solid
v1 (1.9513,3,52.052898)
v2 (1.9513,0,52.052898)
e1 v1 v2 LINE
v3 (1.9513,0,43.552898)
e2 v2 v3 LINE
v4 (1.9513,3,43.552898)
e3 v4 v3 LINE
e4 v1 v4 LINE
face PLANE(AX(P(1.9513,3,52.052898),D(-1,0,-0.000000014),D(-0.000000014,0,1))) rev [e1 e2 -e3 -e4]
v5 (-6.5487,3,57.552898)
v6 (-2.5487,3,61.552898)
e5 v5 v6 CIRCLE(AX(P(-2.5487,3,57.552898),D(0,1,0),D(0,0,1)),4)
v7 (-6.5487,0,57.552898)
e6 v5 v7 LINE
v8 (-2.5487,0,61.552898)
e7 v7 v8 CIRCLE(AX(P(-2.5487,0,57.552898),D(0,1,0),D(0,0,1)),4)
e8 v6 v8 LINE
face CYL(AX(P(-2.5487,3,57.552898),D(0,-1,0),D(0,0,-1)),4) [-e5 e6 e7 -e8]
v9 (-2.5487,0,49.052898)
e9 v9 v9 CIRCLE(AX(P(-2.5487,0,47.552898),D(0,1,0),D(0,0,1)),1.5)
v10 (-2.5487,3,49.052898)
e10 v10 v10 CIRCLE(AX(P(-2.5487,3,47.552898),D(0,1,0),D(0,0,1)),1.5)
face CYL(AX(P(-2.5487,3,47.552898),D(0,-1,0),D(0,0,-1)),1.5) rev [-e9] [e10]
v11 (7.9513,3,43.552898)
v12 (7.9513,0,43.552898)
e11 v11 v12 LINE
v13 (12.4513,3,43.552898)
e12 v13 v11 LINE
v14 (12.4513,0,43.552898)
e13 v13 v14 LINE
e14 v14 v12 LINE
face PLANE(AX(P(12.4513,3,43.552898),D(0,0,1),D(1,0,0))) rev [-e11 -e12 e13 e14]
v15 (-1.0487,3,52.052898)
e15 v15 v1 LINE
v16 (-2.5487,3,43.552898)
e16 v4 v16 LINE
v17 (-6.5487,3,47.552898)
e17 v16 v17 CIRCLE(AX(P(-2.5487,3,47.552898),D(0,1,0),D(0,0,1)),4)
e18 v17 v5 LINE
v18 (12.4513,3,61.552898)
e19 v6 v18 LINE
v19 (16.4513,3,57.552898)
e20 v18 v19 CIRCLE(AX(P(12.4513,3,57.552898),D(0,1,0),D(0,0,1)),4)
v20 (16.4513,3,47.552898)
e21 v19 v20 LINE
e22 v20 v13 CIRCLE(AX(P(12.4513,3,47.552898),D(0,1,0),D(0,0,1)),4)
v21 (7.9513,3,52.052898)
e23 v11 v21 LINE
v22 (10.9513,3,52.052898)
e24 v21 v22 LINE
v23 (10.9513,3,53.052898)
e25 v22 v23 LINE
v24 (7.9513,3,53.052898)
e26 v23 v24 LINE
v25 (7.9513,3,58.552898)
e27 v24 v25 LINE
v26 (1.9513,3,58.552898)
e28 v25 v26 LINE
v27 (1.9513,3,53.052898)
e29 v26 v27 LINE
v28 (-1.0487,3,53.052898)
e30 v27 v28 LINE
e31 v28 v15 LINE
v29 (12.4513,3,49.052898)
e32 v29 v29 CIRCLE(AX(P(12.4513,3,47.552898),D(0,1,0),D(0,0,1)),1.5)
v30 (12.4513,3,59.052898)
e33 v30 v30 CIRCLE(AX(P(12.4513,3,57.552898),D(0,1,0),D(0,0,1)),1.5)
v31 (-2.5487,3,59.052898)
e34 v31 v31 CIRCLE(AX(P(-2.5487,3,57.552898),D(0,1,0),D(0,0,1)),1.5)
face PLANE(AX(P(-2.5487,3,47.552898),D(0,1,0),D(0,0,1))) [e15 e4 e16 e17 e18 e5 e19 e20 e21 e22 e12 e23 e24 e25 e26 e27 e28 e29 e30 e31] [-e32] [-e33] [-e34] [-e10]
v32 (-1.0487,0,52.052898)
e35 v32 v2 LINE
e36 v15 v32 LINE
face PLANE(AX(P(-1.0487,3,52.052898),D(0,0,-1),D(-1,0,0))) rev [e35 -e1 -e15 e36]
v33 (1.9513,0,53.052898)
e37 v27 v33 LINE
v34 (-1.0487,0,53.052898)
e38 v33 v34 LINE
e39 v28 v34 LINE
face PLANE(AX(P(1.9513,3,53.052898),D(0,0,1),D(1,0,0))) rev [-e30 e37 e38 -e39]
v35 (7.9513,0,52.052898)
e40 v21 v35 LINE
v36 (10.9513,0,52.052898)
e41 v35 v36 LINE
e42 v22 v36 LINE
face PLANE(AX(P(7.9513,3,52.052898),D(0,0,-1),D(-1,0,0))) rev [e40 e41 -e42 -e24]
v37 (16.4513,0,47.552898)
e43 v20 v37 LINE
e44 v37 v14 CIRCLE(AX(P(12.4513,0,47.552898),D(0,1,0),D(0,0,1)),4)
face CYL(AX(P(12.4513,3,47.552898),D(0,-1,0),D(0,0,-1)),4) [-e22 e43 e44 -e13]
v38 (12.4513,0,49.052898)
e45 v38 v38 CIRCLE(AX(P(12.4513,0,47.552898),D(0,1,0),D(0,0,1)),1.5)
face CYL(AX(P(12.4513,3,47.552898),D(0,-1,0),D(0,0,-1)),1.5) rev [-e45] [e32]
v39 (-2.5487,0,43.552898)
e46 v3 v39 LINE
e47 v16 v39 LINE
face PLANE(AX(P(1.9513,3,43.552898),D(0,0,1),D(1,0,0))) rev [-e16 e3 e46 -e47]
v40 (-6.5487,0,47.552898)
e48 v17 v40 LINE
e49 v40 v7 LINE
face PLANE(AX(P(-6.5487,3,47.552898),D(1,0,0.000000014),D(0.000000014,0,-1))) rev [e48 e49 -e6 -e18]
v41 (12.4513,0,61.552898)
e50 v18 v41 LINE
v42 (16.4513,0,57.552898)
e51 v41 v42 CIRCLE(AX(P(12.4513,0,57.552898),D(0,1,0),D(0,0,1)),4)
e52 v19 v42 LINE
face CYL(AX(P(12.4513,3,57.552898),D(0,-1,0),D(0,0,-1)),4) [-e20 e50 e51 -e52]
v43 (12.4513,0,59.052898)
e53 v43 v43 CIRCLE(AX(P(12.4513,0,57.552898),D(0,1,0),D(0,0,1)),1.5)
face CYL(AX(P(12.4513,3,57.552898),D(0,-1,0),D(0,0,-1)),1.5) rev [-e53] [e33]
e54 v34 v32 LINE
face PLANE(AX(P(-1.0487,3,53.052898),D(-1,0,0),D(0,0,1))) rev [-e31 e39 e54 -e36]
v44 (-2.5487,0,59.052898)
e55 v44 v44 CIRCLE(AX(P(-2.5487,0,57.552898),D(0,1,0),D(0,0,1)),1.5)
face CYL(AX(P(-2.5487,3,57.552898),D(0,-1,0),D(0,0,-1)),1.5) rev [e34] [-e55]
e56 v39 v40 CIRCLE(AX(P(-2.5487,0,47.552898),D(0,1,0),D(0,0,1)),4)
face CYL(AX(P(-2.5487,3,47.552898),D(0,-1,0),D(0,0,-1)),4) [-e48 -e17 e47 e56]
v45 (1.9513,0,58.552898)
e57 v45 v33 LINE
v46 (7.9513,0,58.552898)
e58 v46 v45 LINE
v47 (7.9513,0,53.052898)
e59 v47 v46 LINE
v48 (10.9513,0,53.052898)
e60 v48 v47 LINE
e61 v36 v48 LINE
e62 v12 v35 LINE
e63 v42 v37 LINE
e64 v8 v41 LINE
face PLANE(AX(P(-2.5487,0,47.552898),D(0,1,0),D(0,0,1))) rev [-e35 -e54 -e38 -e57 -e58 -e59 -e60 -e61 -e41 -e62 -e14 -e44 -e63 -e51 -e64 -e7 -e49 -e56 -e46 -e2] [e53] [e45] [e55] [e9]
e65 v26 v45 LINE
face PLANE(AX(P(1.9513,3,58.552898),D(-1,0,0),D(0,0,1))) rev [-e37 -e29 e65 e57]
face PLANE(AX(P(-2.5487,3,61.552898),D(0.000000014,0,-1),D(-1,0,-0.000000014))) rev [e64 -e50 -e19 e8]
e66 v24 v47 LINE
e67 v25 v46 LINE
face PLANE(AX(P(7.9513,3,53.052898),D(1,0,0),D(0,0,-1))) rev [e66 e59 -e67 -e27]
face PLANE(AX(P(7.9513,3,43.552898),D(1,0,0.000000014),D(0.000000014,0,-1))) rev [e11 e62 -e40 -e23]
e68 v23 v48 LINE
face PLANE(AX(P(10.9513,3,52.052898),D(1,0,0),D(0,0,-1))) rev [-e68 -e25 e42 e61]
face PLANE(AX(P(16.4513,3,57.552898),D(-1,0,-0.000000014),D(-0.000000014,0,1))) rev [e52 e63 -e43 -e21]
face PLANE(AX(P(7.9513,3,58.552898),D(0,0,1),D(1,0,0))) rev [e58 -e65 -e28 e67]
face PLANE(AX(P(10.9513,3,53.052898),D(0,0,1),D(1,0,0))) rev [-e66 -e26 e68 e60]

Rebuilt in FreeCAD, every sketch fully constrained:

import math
import FreeCAD as App
import Part
import Sketcher

V = App.Vector
Q = App.Units.Quantity

doc = App.newDocument("Part")
params = doc.addObject("Spreadsheet::Sheet", "Params")
for row, (alias, value) in enumerate([
    ("sketch1_diameter", "3 mm"),
    ("sketch1_radius", "4 mm"),
    ("sketch1_width", "3 mm"),
    ("sketch1_width2", "6 mm"),
    ("sketch1_width3", "15 mm"),
    ("pad1_length", "3 mm"),
], start=1):
    params.set(f"A{row}", alias)
    params.set(f"B{row}", "=" + value)
    params.setAlias(f"B{row}", alias)

body = doc.addObject("PartDesign::Body", "Body")

# Sketch on XZ plane
sketch1 = doc.addObject("Sketcher::SketchObject", "Sketch")
body.addObject(sketch1)
sketch1.AttachmentSupport = (doc.XZ_Plane, [""])
sketch1.MapMode = "FlatFace"
sketch1.addGeometry(Part.LineSegment(V(8, 43.6, 0), V(8, 52.1, 0)), False)
sketch1.addGeometry(Part.LineSegment(V(8, 52.1, 0), V(11, 52.1, 0)), False)
sketch1.addGeometry(Part.LineSegment(V(11, 52.1, 0), V(11, 53.1, 0)), False)
sketch1.addGeometry(Part.LineSegment(V(11, 53.1, 0), V(8, 53.1, 0)), False)
sketch1.addGeometry(Part.LineSegment(V(8, 53.1, 0), V(8, 58.6, 0)), False)
sketch1.addGeometry(Part.LineSegment(V(8, 58.6, 0), V(2, 58.6, 0)), False)
sketch1.addGeometry(Part.LineSegment(V(2, 58.6, 0), V(2, 53.1, 0)), False)
sketch1.addGeometry(Part.LineSegment(V(2, 53.1, 0), V(-1, 53.1, 0)), False)
sketch1.addGeometry(Part.LineSegment(V(-1, 53.1, 0), V(-1, 52.1, 0)), False)
sketch1.addGeometry(Part.LineSegment(V(-1, 52.1, 0), V(2, 52.1, 0)), False)
sketch1.addGeometry(Part.LineSegment(V(2, 52.1, 0), V(2, 43.6, 0)), False)
sketch1.addGeometry(Part.LineSegment(V(2, 43.6, 0), V(-2.5, 43.6, 0)), False)
sketch1.addGeometry(Part.ArcOfCircle(Part.Circle(V(-2.5, 47.6, 0), V(0, 0, 1), 4), math.radians(-180), math.radians(-90)), False)
sketch1.addGeometry(Part.LineSegment(V(-6.5, 47.6, 0), V(-6.5, 57.6, 0)), False)
sketch1.addGeometry(Part.ArcOfCircle(Part.Circle(V(-2.5, 57.6, 0), V(0, 0, 1), 4), math.radians(90), math.radians(180)), False)
sketch1.addGeometry(Part.LineSegment(V(-2.5, 61.6, 0), V(12.5, 61.6, 0)), False)
sketch1.addGeometry(Part.ArcOfCircle(Part.Circle(V(12.5, 57.6, 0), V(0, 0, 1), 4), math.radians(0), math.radians(90)), False)
sketch1.addGeometry(Part.LineSegment(V(16.5, 57.6, 0), V(16.5, 47.6, 0)), False)
sketch1.addGeometry(Part.ArcOfCircle(Part.Circle(V(12.5, 47.6, 0), V(0, 0, 1), 4), math.radians(-90), math.radians(0)), False)
sketch1.addGeometry(Part.LineSegment(V(12.5, 43.6, 0), V(8, 43.6, 0)), False)
sketch1.addGeometry(Part.Circle(V(-2.5, 57.6, 0), V(0, 0, 1), 1.5), False)
sketch1.addGeometry(Part.Circle(V(12.5, 57.6, 0), V(0, 0, 1), 1.5), False)
sketch1.addGeometry(Part.Circle(V(-2.5, 47.6, 0), V(0, 0, 1), 1.5), False)
sketch1.addGeometry(Part.Circle(V(12.5, 47.6, 0), V(0, 0, 1), 1.5), False)
sketch1.addConstraint(Sketcher.Constraint("Coincident", 0, 2, 1, 1))
sketch1.addConstraint(Sketcher.Constraint("Coincident", 1, 2, 2, 1))
sketch1.addConstraint(Sketcher.Constraint("Coincident", 2, 2, 3, 1))
sketch1.addConstraint(Sketcher.Constraint("Coincident", 3, 2, 4, 1))
sketch1.addConstraint(Sketcher.Constraint("Coincident", 4, 2, 5, 1))
sketch1.addConstraint(Sketcher.Constraint("Coincident", 5, 2, 6, 1))
sketch1.addConstraint(Sketcher.Constraint("Coincident", 6, 2, 7, 1))
sketch1.addConstraint(Sketcher.Constraint("Coincident", 7, 2, 8, 1))
sketch1.addConstraint(Sketcher.Constraint("Coincident", 8, 2, 9, 1))
sketch1.addConstraint(Sketcher.Constraint("Coincident", 9, 2, 10, 1))
sketch1.addConstraint(Sketcher.Constraint("Coincident", 10, 2, 11, 1))
sketch1.addConstraint(Sketcher.Constraint("Tangent", 11, 2, 12, 2))
sketch1.addConstraint(Sketcher.Constraint("Tangent", 12, 1, 13, 1))
sketch1.addConstraint(Sketcher.Constraint("Tangent", 13, 2, 14, 2))
sketch1.addConstraint(Sketcher.Constraint("Tangent", 14, 1, 15, 1))
sketch1.addConstraint(Sketcher.Constraint("Tangent", 15, 2, 16, 2))
sketch1.addConstraint(Sketcher.Constraint("Tangent", 16, 1, 17, 1))
sketch1.addConstraint(Sketcher.Constraint("Tangent", 17, 2, 18, 2))
sketch1.addConstraint(Sketcher.Constraint("Tangent", 18, 1, 19, 1))
sketch1.addConstraint(Sketcher.Constraint("Coincident", 19, 2, 0, 1))
sketch1.addConstraint(Sketcher.Constraint("Vertical", 0))
sketch1.addConstraint(Sketcher.Constraint("Horizontal", 1))
sketch1.addConstraint(Sketcher.Constraint("Vertical", 2))
sketch1.addConstraint(Sketcher.Constraint("Horizontal", 3))
sketch1.addConstraint(Sketcher.Constraint("Vertical", 4))
sketch1.addConstraint(Sketcher.Constraint("Horizontal", 5))
sketch1.addConstraint(Sketcher.Constraint("Vertical", 6))
sketch1.addConstraint(Sketcher.Constraint("Horizontal", 7))
sketch1.addConstraint(Sketcher.Constraint("Vertical", 8))
sketch1.addConstraint(Sketcher.Constraint("Horizontal", 9))
sketch1.addConstraint(Sketcher.Constraint("Vertical", 10))
sketch1.addConstraint(Sketcher.Constraint("Horizontal", 11))
sketch1.addConstraint(Sketcher.Constraint("Vertical", 13))
sketch1.addConstraint(Sketcher.Constraint("Horizontal", 15))
sketch1.addConstraint(Sketcher.Constraint("Vertical", 17))
sketch1.addConstraint(Sketcher.Constraint("Horizontal", 19))
sketch1.addConstraint(Sketcher.Constraint("Coincident", 20, 3, 14, 3))
sketch1.addConstraint(Sketcher.Constraint("Coincident", 21, 3, 16, 3))
sketch1.addConstraint(Sketcher.Constraint("Coincident", 22, 3, 12, 3))
sketch1.addConstraint(Sketcher.Constraint("Coincident", 23, 3, 18, 3))
sketch1.addConstraint(Sketcher.Constraint("Equal", 12, 14))
sketch1.addConstraint(Sketcher.Constraint("Equal", 14, 16))
sketch1.addConstraint(Sketcher.Constraint("Equal", 16, 18))
sketch1.addConstraint(Sketcher.Constraint("Equal", 20, 21))
sketch1.addConstraint(Sketcher.Constraint("Equal", 21, 22))
sketch1.addConstraint(Sketcher.Constraint("Equal", 22, 23))
sketch1.addConstraint(Sketcher.Constraint("Horizontal", 12, 3, 18, 3))
sketch1.addConstraint(Sketcher.Constraint("Horizontal", 3, 2, 6, 2))
sketch1.addConstraint(Sketcher.Constraint("Horizontal", 1, 2, 8, 2))
sketch1.addConstraint(Sketcher.Constraint("Vertical", 0, 2, 3, 2))
sketch1.addConstraint(Sketcher.Constraint("Vertical", 6, 2, 9, 2))
sketch1.addConstraint(Sketcher.Constraint("Equal", 3, 7))
sketch1.addConstraint(Sketcher.Constraint("Equal", 11, 19))
sketch1.addConstraint(Sketcher.Constraint("Diameter", 20, Q("3 mm")))
sketch1.addConstraint(Sketcher.Constraint("Radius", 12, Q("4 mm")))
sketch1.addConstraint(Sketcher.Constraint("DistanceX", 1, 1, 1, 2, Q("3 mm")))
sketch1.addConstraint(Sketcher.Constraint("DistanceX", 5, 2, 5, 1, Q("6 mm")))
sketch1.addConstraint(Sketcher.Constraint("DistanceX", 15, 1, 15, 2, Q("15 mm")))
sketch1.addConstraint(Sketcher.Constraint("DistanceY", 2, 1, 2, 2, Q("1 mm")))
sketch1.addConstraint(Sketcher.Constraint("DistanceY", 13, 1, 13, 2, Q("10 mm")))
sketch1.addConstraint(Sketcher.Constraint("DistanceY", 0, 1, 0, 2, Q("8.5 mm")))
sketch1.addConstraint(Sketcher.Constraint("DistanceY", 4, 1, 4, 2, Q("5.5 mm")))
sketch1.addConstraint(Sketcher.Constraint("DistanceX", 12, 3, -1, 1, Q("2.5487 mm")))
sketch1.addConstraint(Sketcher.Constraint("DistanceY", -1, 1, 16, 3, Q("57.552898 mm")))
sketch1.setExpression("Constraints[53]", "Params.sketch1_diameter")
sketch1.setExpression("Constraints[54]", "Params.sketch1_radius")
sketch1.setExpression("Constraints[55]", "Params.sketch1_width")
sketch1.setExpression("Constraints[56]", "Params.sketch1_width2")
sketch1.setExpression("Constraints[57]", "Params.sketch1_width3")
pad1 = doc.addObject("PartDesign::Pad", "Pad")
body.addObject(pad1)
pad1.Profile = sketch1
pad1.setExpression("Length", "Params.pad1_length")
pad1.Reversed = True

doc.recompute()
